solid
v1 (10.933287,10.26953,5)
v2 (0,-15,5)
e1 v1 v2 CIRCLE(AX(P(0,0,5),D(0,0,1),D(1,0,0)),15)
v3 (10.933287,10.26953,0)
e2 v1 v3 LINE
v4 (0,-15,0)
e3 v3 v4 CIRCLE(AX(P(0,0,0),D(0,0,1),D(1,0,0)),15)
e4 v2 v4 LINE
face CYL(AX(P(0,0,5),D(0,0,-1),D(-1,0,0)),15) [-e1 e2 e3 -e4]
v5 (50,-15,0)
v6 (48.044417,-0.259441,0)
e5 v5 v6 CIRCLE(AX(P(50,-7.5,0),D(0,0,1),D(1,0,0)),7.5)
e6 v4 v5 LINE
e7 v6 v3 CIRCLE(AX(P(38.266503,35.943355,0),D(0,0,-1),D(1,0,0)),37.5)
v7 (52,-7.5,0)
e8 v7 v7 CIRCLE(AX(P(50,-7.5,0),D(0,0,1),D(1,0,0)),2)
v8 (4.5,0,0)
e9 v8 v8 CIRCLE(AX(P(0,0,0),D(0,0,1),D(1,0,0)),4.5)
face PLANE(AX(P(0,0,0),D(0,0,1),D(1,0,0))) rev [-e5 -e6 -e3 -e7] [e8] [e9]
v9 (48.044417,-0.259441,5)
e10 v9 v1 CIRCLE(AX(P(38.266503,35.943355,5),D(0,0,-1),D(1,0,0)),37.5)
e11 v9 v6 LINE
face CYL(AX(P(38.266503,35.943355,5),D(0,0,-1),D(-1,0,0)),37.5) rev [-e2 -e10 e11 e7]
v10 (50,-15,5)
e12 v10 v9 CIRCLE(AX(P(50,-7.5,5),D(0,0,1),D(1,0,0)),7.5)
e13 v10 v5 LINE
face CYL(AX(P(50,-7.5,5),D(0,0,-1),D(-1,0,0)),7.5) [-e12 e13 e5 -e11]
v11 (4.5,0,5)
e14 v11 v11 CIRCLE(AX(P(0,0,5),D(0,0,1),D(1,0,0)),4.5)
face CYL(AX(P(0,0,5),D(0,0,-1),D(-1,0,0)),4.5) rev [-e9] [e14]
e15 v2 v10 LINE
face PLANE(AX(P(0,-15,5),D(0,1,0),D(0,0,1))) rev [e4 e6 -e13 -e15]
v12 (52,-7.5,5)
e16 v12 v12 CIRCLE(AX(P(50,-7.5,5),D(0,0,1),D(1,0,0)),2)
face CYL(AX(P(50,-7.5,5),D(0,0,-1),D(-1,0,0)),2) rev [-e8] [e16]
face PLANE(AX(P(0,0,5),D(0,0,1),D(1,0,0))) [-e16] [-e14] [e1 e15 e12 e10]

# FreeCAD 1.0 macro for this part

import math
import FreeCAD as App
import Part
import Sketcher

V = App.Vector

doc = App.newDocument("Part")
body = doc.addObject("PartDesign::Body", "Body")

sketch1 = body.newObject("Sketcher::SketchObject", "Sketch")
sketch1.AttachmentSupport = (doc.getObject("XY_Plane"), [""])
sketch1.MapMode = "FlatFace"
sketch1.addGeometry(Part.LineSegment(V(0, -15, 0), V(50, -15, 0)), False)
sketch1.addGeometry(Part.ArcOfCircle(Part.Circle(V(50, -7.5, 0), V(0, 0, 1), 7.5), math.radians(-90), math.radians(105)), False)
sketch1.addGeometry(Part.ArcOfCircle(Part.Circle(V(38.3, 35.9, 0), V(0, 0, 1), 37.5), math.radians(-137), math.radians(-75)), False)
sketch1.addGeometry(Part.ArcOfCircle(Part.Circle(V(0, 0, 0), V(0, 0, 1), 15), math.radians(43), math.radians(270)), False)
sketch1.addGeometry(Part.Circle(V(50, -7.5, 0), V(0, 0, 1), 2), False)
sketch1.addGeometry(Part.Circle(V(0, 0, 0), V(0, 0, 1), 4.5), False)
sketch1.addConstraint(Sketcher.Constraint("Tangent", 0, 2, 1, 1))
sketch1.addConstraint(Sketcher.Constraint("Tangent", 1, 2, 2, 2))
sketch1.addConstraint(Sketcher.Constraint("Tangent", 2, 1, 3, 1))
sketch1.addConstraint(Sketcher.Constraint("Tangent", 3, 2, 0, 1))
sketch1.addConstraint(Sketcher.Constraint("Horizontal", 0))
sketch1.addConstraint(Sketcher.Constraint("Coincident", 3, 3, -1, 1))
sketch1.addConstraint(Sketcher.Constraint("Coincident", 5, 3, -1, 1))
sketch1.addConstraint(Sketcher.Constraint("Coincident", 4, 3, 1, 3))
sketch1.addConstraint(Sketcher.Constraint("Diameter", 4, 4.0))
sketch1.addConstraint(Sketcher.Constraint("Diameter", 5, 9.0))
sketch1.addConstraint(Sketcher.Constraint("Radius", 3, 15.0))
sketch1.addConstraint(Sketcher.Constraint("Radius", 1, 7.5))
sketch1.addConstraint(Sketcher.Constraint("Radius", 2, 37.5))
sketch1.addConstraint(Sketcher.Constraint("DistanceX", 0, 1, 0, 2, 50.0))
pad1 = body.newObject("PartDesign::Pad", "Pad")
pad1.Profile = sketch1
pad1.Length = 5

doc.recompute()
